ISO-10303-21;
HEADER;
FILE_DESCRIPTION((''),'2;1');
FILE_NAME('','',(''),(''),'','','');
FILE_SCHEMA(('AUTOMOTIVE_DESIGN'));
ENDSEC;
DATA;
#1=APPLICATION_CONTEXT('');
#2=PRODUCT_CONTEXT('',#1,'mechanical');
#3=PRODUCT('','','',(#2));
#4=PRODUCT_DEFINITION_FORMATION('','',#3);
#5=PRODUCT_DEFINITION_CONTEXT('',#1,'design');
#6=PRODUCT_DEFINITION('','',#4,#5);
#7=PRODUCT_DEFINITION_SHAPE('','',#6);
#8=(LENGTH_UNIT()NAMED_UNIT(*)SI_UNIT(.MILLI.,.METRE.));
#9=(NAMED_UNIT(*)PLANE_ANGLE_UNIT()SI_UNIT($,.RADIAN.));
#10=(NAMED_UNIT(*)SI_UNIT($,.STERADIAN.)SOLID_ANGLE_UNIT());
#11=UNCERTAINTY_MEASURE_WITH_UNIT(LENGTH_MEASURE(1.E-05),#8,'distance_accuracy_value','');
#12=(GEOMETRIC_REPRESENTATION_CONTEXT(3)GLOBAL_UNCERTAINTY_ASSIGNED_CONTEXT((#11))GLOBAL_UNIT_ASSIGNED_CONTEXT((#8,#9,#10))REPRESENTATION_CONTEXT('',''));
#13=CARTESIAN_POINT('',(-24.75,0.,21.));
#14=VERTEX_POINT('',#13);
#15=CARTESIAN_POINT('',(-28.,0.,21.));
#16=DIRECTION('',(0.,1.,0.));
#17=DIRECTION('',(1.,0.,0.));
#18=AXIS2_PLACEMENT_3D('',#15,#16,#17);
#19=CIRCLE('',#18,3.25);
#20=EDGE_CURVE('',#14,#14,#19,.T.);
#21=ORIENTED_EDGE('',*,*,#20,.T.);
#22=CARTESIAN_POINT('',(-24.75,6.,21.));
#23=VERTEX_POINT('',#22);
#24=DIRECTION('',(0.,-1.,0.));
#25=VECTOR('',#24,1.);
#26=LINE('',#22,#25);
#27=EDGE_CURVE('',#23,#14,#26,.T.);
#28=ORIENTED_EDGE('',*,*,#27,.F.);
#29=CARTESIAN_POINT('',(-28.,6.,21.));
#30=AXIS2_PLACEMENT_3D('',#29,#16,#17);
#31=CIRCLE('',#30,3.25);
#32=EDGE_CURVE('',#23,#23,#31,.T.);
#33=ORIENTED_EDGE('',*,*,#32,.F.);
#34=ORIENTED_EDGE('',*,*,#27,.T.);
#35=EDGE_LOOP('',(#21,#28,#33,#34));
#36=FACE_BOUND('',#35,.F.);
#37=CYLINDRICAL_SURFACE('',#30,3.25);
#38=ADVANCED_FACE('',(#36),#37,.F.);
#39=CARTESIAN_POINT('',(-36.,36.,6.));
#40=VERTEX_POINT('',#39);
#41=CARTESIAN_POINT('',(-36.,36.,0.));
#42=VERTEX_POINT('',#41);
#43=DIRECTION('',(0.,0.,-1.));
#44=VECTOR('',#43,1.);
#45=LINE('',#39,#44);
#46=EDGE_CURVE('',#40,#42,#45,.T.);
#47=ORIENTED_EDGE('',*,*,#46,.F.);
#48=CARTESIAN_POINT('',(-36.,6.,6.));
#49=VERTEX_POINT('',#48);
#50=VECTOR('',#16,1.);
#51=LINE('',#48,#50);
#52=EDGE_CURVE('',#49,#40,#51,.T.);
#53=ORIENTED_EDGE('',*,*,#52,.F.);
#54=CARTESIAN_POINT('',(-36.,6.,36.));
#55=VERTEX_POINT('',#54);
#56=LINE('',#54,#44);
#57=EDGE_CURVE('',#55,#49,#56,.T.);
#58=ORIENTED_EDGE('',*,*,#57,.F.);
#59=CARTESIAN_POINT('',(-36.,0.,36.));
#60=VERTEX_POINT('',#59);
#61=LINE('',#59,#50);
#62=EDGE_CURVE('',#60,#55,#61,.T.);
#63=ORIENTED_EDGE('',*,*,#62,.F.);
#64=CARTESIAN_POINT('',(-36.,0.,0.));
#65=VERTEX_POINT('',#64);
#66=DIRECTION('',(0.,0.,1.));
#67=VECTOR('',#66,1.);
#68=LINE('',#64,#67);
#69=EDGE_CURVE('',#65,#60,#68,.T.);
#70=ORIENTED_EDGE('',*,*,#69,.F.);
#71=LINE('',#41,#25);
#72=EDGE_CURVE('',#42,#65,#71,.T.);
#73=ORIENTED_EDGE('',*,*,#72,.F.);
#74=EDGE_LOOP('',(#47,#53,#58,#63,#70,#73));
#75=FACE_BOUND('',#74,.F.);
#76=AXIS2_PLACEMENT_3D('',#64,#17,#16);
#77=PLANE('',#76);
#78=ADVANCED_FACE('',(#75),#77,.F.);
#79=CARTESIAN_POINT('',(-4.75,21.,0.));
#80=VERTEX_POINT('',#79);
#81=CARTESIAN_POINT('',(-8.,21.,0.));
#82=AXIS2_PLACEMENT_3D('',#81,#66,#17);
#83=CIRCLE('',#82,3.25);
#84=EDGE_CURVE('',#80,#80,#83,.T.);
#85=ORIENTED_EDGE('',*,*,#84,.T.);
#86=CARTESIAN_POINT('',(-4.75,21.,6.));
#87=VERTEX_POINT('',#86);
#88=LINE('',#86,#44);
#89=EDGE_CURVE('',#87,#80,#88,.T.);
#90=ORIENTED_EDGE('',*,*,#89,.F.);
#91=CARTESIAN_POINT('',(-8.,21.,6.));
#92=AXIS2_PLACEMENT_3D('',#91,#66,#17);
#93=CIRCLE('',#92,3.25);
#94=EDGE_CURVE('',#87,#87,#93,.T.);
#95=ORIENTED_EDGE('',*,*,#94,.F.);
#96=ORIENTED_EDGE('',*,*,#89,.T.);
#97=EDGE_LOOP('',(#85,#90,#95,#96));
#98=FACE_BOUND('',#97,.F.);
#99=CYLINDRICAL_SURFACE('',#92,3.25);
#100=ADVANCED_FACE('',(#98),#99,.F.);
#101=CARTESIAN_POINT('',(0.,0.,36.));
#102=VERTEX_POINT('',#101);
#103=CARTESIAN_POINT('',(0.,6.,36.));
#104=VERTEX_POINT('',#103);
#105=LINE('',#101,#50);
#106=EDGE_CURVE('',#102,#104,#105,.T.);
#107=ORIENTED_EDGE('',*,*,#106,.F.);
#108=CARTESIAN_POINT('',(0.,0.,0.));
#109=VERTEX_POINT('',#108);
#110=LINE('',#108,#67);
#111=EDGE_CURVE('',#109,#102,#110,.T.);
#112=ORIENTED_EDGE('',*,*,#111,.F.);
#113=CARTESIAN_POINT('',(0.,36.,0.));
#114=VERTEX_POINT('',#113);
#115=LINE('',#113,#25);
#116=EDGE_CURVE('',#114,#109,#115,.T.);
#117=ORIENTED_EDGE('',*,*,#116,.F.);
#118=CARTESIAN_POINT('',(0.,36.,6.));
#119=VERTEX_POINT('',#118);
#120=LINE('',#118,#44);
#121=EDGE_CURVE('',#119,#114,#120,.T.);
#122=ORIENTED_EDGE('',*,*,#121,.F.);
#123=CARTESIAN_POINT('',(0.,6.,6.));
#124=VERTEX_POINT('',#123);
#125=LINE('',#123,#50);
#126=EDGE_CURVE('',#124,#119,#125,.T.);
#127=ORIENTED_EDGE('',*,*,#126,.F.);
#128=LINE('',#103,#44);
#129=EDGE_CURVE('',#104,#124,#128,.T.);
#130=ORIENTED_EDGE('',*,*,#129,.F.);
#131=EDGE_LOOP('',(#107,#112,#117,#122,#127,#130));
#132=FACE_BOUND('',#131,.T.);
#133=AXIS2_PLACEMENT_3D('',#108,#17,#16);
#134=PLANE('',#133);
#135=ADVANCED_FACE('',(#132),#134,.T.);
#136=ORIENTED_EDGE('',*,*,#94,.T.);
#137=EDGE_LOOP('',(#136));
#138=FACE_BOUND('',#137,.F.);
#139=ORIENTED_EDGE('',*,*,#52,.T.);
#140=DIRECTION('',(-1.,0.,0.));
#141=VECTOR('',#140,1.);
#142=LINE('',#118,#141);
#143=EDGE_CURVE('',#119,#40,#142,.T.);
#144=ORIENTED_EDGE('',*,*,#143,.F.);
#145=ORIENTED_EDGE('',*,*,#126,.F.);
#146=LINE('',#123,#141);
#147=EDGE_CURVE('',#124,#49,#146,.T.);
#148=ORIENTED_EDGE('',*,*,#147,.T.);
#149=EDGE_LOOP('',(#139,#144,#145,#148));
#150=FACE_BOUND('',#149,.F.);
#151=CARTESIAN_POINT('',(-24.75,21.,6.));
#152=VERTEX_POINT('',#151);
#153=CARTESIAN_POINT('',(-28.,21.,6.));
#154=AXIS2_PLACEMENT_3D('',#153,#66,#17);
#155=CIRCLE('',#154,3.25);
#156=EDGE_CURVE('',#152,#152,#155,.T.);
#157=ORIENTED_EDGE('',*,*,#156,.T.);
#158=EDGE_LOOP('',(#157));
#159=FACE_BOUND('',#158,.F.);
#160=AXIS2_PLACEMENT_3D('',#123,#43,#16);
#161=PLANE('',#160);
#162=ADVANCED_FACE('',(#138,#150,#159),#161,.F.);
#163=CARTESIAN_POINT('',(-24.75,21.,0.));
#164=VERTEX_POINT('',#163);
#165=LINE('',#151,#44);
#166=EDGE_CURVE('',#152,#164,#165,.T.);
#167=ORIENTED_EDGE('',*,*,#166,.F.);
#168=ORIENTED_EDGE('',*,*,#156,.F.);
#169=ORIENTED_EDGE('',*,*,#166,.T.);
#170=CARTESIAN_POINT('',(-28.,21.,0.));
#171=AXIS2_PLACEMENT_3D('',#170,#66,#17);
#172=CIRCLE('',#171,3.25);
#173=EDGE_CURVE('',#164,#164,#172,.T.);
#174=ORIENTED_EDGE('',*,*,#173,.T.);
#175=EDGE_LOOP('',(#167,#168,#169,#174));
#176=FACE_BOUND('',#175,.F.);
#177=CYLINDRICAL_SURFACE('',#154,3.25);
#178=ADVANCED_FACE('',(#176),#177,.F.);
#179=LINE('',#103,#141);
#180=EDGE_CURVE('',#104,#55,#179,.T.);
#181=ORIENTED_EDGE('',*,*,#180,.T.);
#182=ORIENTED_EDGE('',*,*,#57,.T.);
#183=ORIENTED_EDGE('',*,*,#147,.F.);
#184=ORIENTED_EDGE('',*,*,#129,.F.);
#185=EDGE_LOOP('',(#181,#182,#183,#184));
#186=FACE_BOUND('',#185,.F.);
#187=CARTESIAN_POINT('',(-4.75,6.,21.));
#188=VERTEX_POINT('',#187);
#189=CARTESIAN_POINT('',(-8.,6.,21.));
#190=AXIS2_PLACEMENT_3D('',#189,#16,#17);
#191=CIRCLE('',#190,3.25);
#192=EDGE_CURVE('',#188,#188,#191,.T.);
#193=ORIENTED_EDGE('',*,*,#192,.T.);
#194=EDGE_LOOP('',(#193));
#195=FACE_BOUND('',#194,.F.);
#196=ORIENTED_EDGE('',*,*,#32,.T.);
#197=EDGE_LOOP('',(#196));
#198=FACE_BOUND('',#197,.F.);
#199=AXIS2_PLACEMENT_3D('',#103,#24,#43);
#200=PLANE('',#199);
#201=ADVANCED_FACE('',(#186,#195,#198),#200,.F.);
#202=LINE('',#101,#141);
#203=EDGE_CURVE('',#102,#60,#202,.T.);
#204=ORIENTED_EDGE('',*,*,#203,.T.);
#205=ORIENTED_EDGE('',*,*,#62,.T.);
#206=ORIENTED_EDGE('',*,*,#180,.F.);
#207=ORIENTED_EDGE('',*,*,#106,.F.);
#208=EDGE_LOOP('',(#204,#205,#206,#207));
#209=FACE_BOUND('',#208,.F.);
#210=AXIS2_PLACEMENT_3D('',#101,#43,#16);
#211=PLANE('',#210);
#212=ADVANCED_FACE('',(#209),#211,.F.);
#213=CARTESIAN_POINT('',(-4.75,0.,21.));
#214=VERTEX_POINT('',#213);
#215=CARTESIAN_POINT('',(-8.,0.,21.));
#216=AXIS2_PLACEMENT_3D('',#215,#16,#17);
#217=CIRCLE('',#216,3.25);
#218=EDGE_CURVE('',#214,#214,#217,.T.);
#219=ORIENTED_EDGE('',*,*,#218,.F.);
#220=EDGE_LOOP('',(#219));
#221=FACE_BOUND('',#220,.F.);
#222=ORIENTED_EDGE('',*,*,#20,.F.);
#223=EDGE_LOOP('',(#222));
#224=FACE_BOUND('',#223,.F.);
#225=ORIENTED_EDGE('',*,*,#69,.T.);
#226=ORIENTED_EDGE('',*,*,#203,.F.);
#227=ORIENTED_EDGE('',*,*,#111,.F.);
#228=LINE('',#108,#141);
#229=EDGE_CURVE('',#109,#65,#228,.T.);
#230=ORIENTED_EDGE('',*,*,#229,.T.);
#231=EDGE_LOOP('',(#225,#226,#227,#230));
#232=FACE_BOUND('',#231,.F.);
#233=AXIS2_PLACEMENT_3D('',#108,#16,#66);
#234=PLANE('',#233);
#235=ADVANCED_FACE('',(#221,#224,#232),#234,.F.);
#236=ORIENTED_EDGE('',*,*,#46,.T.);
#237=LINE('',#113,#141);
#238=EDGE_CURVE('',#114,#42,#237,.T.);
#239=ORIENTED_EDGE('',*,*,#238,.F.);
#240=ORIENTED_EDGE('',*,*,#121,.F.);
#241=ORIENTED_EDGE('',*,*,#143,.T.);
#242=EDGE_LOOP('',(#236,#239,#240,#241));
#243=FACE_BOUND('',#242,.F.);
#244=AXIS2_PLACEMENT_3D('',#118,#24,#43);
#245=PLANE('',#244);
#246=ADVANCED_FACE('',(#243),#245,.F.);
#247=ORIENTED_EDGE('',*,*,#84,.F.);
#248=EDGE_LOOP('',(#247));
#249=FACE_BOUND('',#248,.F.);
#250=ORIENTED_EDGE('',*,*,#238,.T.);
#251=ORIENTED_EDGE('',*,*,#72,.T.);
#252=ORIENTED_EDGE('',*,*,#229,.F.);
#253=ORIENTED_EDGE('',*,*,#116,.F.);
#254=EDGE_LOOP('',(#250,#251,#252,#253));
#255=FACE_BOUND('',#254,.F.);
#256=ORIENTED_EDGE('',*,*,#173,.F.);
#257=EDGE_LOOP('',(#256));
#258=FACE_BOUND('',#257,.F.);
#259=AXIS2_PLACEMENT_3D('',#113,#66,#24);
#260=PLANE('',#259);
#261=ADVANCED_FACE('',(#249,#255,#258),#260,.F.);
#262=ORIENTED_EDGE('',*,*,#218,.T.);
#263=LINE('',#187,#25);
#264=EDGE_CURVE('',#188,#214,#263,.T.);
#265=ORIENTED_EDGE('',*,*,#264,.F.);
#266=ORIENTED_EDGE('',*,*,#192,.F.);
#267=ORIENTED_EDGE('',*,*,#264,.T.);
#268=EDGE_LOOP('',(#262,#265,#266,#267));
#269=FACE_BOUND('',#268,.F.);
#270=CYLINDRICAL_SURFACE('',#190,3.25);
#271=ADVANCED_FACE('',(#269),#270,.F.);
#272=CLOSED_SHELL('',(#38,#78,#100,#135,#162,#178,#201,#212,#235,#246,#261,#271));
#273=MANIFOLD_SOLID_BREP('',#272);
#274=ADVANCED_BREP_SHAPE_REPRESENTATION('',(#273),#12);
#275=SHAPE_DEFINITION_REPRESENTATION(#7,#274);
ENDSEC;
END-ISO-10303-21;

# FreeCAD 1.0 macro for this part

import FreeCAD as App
import Part
import Sketcher
from FreeCAD import Vector

doc = App.newDocument("Part")
body = doc.addObject("PartDesign::Body", "Body")

sketch1 = doc.addObject("Sketcher::SketchObject", "Sketch")
body.addObject(sketch1)
sketch1.AttachmentSupport = (doc.YZ_Plane, [""])
sketch1.MapMode = "FlatFace"
sketch1.addGeometry([
    Part.LineSegment(Vector(0, 36, 0), Vector(0, 0, 0)),
    Part.LineSegment(Vector(0, 0, 0), Vector(36, 0, 0)),
    Part.LineSegment(Vector(36, 0, 0), Vector(36, 6, 0)),
    Part.LineSegment(Vector(36, 6, 0), Vector(6, 6, 0)),
    Part.LineSegment(Vector(6, 6, 0), Vector(6, 36, 0)),
    Part.LineSegment(Vector(6, 36, 0), Vector(0, 36, 0)),
], False)
sketch1.addConstraint([
    Sketcher.Constraint("Coincident", 0, 2, 1, 1),
    Sketcher.Constraint("Coincident", 1, 2, 2, 1),
    Sketcher.Constraint("Coincident", 2, 2, 3, 1),
    Sketcher.Constraint("Coincident", 3, 2, 4, 1),
    Sketcher.Constraint("Coincident", 4, 2, 5, 1),
    Sketcher.Constraint("Coincident", 5, 2, 0, 1),
    Sketcher.Constraint("Vertical", 0),
    Sketcher.Constraint("Horizontal", 1),
    Sketcher.Constraint("Vertical", 2),
    Sketcher.Constraint("Horizontal", 3),
    Sketcher.Constraint("Vertical", 4),
    Sketcher.Constraint("Horizontal", 5),
    Sketcher.Constraint("Coincident", 0, 2, -1, 1),
    Sketcher.Constraint("Equal", 1, 0),
    Sketcher.Constraint("Equal", 5, 2),
    Sketcher.Constraint("DistanceX", 1, 1, 1, 2, 36.0),
    Sketcher.Constraint("DistanceX", 3, 2, 3, 1, 30.0),
])
pad1 = doc.addObject("PartDesign::Pad", "Pad")
body.addObject(pad1)
pad1.Profile = sketch1
pad1.Length = 36
pad1.Reversed = True

sketch2 = doc.addObject("Sketcher::SketchObject", "Sketch001")
body.addObject(sketch2)
sketch2.AttachmentSupport = (doc.XY_Plane, [""])
sketch2.MapMode = "FlatFace"
sketch2.AttachmentOffset = App.Placement(Vector(0, 0, 6), App.Rotation())
sketch2.addGeometry([
    Part.Circle(Vector(-28, 21, 0), Vector(0, 0, 1), 3.2),
    Part.Circle(Vector(-8, 21, 0), Vector(0, 0, 1), 3.2),
], False)
sketch2.addConstraint([
    Sketcher.Constraint("Equal", 0, 1),
    Sketcher.Constraint("Horizontal", 0, 3, 1, 3),
    Sketcher.Constraint("Diameter", 0, 6.5),
    Sketcher.Constraint("DistanceX", 1, 3, -1, 1, 8.0),
    Sketcher.Constraint("DistanceX", 0, 3, 1, 3, 20.0),
    Sketcher.Constraint("DistanceY", -1, 1, 0, 3, 21.0),
])
pocket1 = doc.addObject("PartDesign::Pocket", "Pocket")
body.addObject(pocket1)
pocket1.Profile = sketch2
pocket1.Length = 6

sketch3 = doc.addObject("Sketcher::SketchObject", "Sketch002")
body.addObject(sketch3)
sketch3.AttachmentSupport = (doc.XZ_Plane, [""])
sketch3.MapMode = "FlatFace"
sketch3.AttachmentOffset = App.Placement(Vector(0, 0, -6), App.Rotation())
sketch3.addGeometry([
    Part.Circle(Vector(-28, 21, 0), Vector(0, 0, 1), 3.2),
    Part.Circle(Vector(-8, 21, 0), Vector(0, 0, 1), 3.2),
], False)
sketch3.addConstraint([
    Sketcher.Constraint("Equal", 0, 1),
    Sketcher.Constraint("Horizontal", 0, 3, 1, 3),
    Sketcher.Constraint("Diameter", 0, 6.5),
    Sketcher.Constraint("DistanceX", 1, 3, -1, 1, 8.0),
    Sketcher.Constraint("DistanceX", 0, 3, 1, 3, 20.0),
    Sketcher.Constraint("DistanceY", -1, 1, 0, 3, 21.0),
])
pocket2 = doc.addObject("PartDesign::Pocket", "Pocket001")
body.addObject(pocket2)
pocket2.Profile = sketch3
pocket2.Length = 6
pocket2.Reversed = True

doc.recompute()
